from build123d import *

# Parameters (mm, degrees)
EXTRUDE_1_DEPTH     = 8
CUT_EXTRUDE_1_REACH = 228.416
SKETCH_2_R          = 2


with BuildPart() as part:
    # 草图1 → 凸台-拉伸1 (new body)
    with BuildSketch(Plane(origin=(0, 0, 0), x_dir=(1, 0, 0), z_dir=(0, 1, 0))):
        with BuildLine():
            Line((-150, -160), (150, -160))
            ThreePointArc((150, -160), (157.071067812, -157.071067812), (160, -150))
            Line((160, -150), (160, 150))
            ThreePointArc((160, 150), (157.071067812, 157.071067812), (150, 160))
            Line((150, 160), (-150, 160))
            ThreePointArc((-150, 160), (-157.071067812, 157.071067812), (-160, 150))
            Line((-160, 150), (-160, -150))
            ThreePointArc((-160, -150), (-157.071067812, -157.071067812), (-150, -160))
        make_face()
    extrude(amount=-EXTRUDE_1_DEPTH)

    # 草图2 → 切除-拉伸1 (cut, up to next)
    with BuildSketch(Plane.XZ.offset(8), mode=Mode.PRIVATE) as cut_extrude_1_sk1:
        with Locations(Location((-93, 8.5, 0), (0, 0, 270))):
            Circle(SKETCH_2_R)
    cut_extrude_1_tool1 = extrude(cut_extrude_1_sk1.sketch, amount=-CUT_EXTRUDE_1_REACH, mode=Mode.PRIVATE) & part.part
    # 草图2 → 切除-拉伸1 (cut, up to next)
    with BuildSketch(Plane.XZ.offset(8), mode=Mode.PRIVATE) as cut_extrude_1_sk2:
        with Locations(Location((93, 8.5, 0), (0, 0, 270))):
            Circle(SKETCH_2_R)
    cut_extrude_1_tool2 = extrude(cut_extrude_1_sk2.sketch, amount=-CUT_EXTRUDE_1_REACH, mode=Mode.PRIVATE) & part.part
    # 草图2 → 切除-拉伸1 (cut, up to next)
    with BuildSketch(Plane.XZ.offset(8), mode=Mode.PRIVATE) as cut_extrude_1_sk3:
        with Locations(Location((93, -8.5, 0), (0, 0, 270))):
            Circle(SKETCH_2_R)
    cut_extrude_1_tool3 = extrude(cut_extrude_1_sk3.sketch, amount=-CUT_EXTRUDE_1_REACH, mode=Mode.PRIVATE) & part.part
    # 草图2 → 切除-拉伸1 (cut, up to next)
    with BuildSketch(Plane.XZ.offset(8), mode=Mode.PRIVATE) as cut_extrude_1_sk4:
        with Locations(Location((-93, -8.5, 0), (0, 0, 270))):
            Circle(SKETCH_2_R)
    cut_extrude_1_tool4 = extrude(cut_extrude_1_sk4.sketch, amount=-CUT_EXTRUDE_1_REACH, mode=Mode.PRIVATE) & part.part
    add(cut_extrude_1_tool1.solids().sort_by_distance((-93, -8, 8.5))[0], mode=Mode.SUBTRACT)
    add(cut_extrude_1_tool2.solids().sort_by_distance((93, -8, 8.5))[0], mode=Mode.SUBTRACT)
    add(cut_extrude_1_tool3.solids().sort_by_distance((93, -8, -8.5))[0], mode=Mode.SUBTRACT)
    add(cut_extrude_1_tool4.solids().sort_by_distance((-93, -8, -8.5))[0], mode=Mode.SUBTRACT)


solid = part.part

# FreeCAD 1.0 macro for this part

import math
import FreeCAD as App
import Part
import Sketcher
Q = App.Units.Quantity

doc = App.newDocument("Part")
params = doc.addObject("Spreadsheet::Sheet", "Params")
for row, (alias, value) in enumerate([
    ("sketch1_radius", "10 mm"),
    ("sketch1_width", "300 mm"),
    ("pad1_length", "8 mm"),
    ("sketch2_diameter", "4 mm"),
    ("sketch3_diameter", "4 mm"),
    ("sketch4_diameter", "4 mm"),
    ("sketch5_diameter", "4 mm"),
], start=1):
    params.set(f"A{row}", alias)
    params.set(f"B{row}", "=" + value)
    params.setAlias(f"B{row}", alias)

body = doc.addObject("PartDesign::Body", "Body")

sketch1 = body.newObject("Sketcher::SketchObject", "Sketch")
sketch1.AttachmentSupport = (doc.getObject("XZ_Plane"), [""])
sketch1.MapMode = "FlatFace"
sketch1.addGeometry([
    Part.LineSegment(App.Vector(-150, 160, 0), App.Vector(150, 160, 0)),
    Part.ArcOfCircle(Part.Circle(App.Vector(150, 150, 0), App.Vector(0, 0, 1), 10), math.radians(0), math.radians(90)),
    Part.LineSegment(App.Vector(160, 150, 0), App.Vector(160, -150, 0)),
    Part.ArcOfCircle(Part.Circle(App.Vector(150, -150, 0), App.Vector(0, 0, 1), 10), math.radians(-90), math.radians(0)),
    Part.LineSegment(App.Vector(150, -160, 0), App.Vector(-150, -160, 0)),
    Part.ArcOfCircle(Part.Circle(App.Vector(-150, -150, 0), App.Vector(0, 0, 1), 10), math.radians(180), math.radians(270)),
    Part.LineSegment(App.Vector(-160, -150, 0), App.Vector(-160, 150, 0)),
    Part.ArcOfCircle(Part.Circle(App.Vector(-150, 150, 0), App.Vector(0, 0, 1), 10), math.radians(90), math.radians(180)),
], False)
sketch1.addConstraint([
    Sketcher.Constraint("Tangent", 0, 2, 1, 2),
    Sketcher.Constraint("Tangent", 1, 1, 2, 1),
    Sketcher.Constraint("Tangent", 2, 2, 3, 2),
    Sketcher.Constraint("Tangent", 3, 1, 4, 1),
    Sketcher.Constraint("Tangent", 4, 2, 5, 2),
    Sketcher.Constraint("Tangent", 5, 1, 6, 1),
    Sketcher.Constraint("Tangent", 6, 2, 7, 2),
    Sketcher.Constraint("Tangent", 7, 1, 0, 1),
    Sketcher.Constraint("Horizontal", 0),
    Sketcher.Constraint("Vertical", 2),
    Sketcher.Constraint("Horizontal", 4),
    Sketcher.Constraint("Vertical", 6),
    Sketcher.Constraint("Equal", 1, 3),
    Sketcher.Constraint("Equal", 3, 5),
    Sketcher.Constraint("Equal", 5, 7),
    Sketcher.Constraint("Symmetric", 1, 3, 5, 3, -1, 1),
    Sketcher.Constraint("Equal", 4, 2),
    Sketcher.Constraint("Radius", 1, Q("10 mm")),
    Sketcher.Constraint("DistanceX", 0, 1, 0, 2, Q("300 mm")),
])
sketch1.setExpression("Constraints[17]", "Params.sketch1_radius")
sketch1.setExpression("Constraints[18]", "Params.sketch1_width")
pad1 = body.newObject("PartDesign::Pad", "Pad")
pad1.Profile = sketch1
pad1.setExpression("Length", "Params.pad1_length")

sketch2 = body.newObject("Sketcher::SketchObject", "Sketch001")
sketch2.AttachmentSupport = (doc.getObject("XZ_Plane"), [""])
sketch2.MapMode = "FlatFace"
sketch2.AttachmentOffset = App.Placement(App.Vector(0, 0, 8), App.Rotation())
sketch2.addGeometry(Part.Circle(App.Vector(-93, 8.5, 0), App.Vector(0, 0, 1), 2), False)
sketch2.addConstraint([
    Sketcher.Constraint("Diameter", 0, Q("4 mm")),
    Sketcher.Constraint("DistanceX", 0, 3, -1, 1, Q("93 mm")),
    Sketcher.Constraint("DistanceY", -1, 1, 0, 3, Q("8.5 mm")),
])
sketch2.setExpression("Constraints[0]", "Params.sketch2_diameter")
pocket1 = body.newObject("PartDesign::Pocket", "Pocket")
pocket1.Profile = sketch2
pocket1.Type = "UpToFirst"

sketch3 = body.newObject("Sketcher::SketchObject", "Sketch002")
sketch3.AttachmentSupport = (doc.getObject("XZ_Plane"), [""])
sketch3.MapMode = "FlatFace"
sketch3.AttachmentOffset = App.Placement(App.Vector(0, 0, 8), App.Rotation())
sketch3.addGeometry(Part.Circle(App.Vector(93, 8.5, 0), App.Vector(0, 0, 1), 2), False)
sketch3.addConstraint([
    Sketcher.Constraint("Diameter", 0, Q("4 mm")),
    Sketcher.Constraint("DistanceX", -1, 1, 0, 3, Q("93 mm")),
    Sketcher.Constraint("DistanceY", -1, 1, 0, 3, Q("8.5 mm")),
])
sketch3.setExpression("Constraints[0]", "Params.sketch3_diameter")
pocket2 = body.newObject("PartDesign::Pocket", "Pocket001")
pocket2.Profile = sketch3
pocket2.Type = "UpToFirst"

sketch4 = body.newObject("Sketcher::SketchObject", "Sketch003")
sketch4.AttachmentSupport = (doc.getObject("XZ_Plane"), [""])
sketch4.MapMode = "FlatFace"
sketch4.AttachmentOffset = App.Placement(App.Vector(0, 0, 8), App.Rotation())
sketch4.addGeometry(Part.Circle(App.Vector(93, -8.5, 0), App.Vector(0, 0, 1), 2), False)
sketch4.addConstraint([
    Sketcher.Constraint("Diameter", 0, Q("4 mm")),
    Sketcher.Constraint("DistanceX", -1, 1, 0, 3, Q("93 mm")),
    Sketcher.Constraint("DistanceY", 0, 3, -1, 1, Q("8.5 mm")),
])
sketch4.setExpression("Constraints[0]", "Params.sketch4_diameter")
pocket3 = body.newObject("PartDesign::Pocket", "Pocket002")
pocket3.Profile = sketch4
pocket3.Type = "UpToFirst"

sketch5 = body.newObject("Sketcher::SketchObject", "Sketch004")
sketch5.AttachmentSupport = (doc.getObject("XZ_Plane"), [""])
sketch5.MapMode = "FlatFace"
sketch5.AttachmentOffset = App.Placement(App.Vector(0, 0, 8), App.Rotation())
sketch5.addGeometry(Part.Circle(App.Vector(-93, -8.5, 0), App.Vector(0, 0, 1), 2), False)
sketch5.addConstraint([
    Sketcher.Constraint("Diameter", 0, Q("4 mm")),
    Sketcher.Constraint("DistanceX", 0, 3, -1, 1, Q("93 mm")),
    Sketcher.Constraint("DistanceY", 0, 3, -1, 1, Q("8.5 mm")),
])
sketch5.setExpression("Constraints[0]", "Params.sketch5_diameter")
pocket4 = body.newObject("PartDesign::Pocket", "Pocket003")
pocket4.Profile = sketch5
pocket4.Type = "UpToFirst"

doc.recompute()
